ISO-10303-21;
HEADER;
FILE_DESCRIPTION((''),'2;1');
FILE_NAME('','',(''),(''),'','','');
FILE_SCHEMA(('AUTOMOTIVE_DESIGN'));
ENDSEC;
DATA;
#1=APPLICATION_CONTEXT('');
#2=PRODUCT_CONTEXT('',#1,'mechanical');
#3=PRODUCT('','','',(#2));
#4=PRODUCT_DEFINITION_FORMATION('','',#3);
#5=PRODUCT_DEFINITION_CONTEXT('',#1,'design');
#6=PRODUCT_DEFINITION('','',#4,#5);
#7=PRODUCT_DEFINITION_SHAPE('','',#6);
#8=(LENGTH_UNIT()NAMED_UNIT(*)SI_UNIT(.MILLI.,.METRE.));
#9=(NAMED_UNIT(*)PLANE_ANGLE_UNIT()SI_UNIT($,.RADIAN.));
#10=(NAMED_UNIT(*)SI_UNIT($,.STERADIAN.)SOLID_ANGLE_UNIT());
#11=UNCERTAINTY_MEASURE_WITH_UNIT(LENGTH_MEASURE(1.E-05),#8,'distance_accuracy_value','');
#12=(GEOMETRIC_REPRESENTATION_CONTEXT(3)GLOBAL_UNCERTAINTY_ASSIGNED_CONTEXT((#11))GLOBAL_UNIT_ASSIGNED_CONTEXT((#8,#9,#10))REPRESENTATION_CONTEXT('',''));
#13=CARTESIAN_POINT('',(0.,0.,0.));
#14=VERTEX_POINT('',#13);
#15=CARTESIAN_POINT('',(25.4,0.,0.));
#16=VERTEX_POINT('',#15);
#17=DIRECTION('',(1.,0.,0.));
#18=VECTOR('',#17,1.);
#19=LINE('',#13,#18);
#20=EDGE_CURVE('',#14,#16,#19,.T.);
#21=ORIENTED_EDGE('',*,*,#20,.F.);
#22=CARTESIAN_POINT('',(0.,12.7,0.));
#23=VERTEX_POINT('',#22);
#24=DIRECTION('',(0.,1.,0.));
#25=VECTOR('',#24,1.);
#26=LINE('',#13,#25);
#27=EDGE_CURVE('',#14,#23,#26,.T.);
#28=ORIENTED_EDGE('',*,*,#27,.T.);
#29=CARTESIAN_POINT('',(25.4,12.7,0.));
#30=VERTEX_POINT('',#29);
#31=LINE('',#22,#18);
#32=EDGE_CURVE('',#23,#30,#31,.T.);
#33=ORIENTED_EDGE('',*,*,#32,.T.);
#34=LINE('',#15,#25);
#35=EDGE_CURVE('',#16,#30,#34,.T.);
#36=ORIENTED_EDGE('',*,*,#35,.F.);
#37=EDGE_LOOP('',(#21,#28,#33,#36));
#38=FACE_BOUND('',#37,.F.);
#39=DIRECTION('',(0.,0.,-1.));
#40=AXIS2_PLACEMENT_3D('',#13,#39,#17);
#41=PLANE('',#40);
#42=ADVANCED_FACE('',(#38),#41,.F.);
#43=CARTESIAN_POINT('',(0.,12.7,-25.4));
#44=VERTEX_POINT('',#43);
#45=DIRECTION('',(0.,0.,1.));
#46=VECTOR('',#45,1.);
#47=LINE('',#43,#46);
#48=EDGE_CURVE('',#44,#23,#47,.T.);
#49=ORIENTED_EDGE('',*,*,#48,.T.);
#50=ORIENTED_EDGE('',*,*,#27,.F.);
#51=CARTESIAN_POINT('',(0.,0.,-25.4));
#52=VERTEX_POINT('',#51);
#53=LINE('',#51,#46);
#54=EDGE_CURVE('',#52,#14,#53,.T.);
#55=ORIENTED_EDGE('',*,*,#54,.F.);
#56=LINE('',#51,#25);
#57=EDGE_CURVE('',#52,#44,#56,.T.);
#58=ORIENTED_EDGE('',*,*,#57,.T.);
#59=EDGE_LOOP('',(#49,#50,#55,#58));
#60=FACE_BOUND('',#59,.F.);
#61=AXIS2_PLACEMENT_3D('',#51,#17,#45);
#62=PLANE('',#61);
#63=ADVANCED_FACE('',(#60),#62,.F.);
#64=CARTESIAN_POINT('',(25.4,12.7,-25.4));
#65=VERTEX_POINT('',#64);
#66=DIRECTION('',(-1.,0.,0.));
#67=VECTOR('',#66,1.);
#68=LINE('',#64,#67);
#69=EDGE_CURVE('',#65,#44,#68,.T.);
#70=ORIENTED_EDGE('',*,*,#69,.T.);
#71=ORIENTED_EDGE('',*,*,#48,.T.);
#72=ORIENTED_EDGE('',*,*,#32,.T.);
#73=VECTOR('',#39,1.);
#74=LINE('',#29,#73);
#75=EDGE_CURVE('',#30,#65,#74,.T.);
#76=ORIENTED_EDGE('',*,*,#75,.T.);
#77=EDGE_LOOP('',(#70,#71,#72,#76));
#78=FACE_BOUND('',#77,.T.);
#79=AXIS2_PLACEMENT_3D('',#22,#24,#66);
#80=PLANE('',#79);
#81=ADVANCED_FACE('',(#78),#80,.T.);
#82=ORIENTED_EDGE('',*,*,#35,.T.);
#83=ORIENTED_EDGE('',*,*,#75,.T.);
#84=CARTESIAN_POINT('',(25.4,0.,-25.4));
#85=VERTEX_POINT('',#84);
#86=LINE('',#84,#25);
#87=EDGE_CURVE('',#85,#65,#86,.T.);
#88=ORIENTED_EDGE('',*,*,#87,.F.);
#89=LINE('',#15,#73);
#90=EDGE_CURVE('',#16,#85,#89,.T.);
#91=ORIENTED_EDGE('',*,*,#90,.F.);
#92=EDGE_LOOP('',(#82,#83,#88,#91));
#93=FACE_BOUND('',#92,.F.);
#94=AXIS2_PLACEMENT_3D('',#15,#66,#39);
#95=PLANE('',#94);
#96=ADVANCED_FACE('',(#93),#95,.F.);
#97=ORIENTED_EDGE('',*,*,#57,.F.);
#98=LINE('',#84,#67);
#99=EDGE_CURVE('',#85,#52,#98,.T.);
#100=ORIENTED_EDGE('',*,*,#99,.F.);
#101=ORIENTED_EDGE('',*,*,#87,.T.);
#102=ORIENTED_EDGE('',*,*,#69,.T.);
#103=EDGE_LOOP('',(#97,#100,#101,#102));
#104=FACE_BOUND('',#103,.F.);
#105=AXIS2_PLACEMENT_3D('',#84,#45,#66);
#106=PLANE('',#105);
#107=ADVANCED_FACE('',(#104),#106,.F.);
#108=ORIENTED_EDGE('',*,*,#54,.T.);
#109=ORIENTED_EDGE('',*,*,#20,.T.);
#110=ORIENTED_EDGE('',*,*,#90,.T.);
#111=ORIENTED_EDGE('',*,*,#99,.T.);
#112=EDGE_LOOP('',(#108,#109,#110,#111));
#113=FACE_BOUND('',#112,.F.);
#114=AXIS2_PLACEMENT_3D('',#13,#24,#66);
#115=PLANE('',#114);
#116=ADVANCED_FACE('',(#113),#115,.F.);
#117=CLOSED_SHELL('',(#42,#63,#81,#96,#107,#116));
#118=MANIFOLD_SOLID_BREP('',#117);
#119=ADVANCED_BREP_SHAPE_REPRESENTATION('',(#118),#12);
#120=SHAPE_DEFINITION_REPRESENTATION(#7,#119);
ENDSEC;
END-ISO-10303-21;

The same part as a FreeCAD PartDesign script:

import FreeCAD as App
import Part
import Sketcher

V = App.Vector
Q = App.Units.Quantity


def add_polygon(sketch, points):
    """Adds a closed chain of lines whose ends are joined by coincident constraints."""
    first, n = sketch.GeometryCount, len(points)
    for a, b in zip(points, points[1:] + points[:1]):
        sketch.addGeometry(Part.LineSegment(App.Vector(*a, 0), App.Vector(*b, 0)), False)
    for i in range(n):
        sketch.addConstraint(Sketcher.Constraint("Coincident", first + i, 2, first + (i + 1) % n, 1))

doc = App.newDocument("Part")
body = doc.addObject("PartDesign::Body", "Body")

# Sketch on XZ plane
sketch1 = body.newObject("Sketcher::SketchObject", "Sketch")
sketch1.AttachmentSupport = (doc.getObject("XZ_Plane"), [""])
sketch1.MapMode = "FlatFace"
add_polygon(sketch1, [(0, -25), (0, 0), (25, 0), (25, -25)])  # lines 0-3
sketch1.addConstraint([
    Sketcher.Constraint("Vertical", 0),
    Sketcher.Constraint("Horizontal", 1),
    Sketcher.Constraint("Vertical", 2),
    Sketcher.Constraint("Horizontal", 3),
    Sketcher.Constraint("Coincident", 0, 2, -1, 1),
    Sketcher.Constraint("Equal", 3, 0),
    Sketcher.Constraint("DistanceX", 1, 1, 1, 2, Q("1 in")),
])
pad1 = body.newObject("PartDesign::Pad", "Pad")
pad1.Profile = sketch1
pad1.Length = Q("0.5 in")
pad1.Reversed = True

doc.recompute()
